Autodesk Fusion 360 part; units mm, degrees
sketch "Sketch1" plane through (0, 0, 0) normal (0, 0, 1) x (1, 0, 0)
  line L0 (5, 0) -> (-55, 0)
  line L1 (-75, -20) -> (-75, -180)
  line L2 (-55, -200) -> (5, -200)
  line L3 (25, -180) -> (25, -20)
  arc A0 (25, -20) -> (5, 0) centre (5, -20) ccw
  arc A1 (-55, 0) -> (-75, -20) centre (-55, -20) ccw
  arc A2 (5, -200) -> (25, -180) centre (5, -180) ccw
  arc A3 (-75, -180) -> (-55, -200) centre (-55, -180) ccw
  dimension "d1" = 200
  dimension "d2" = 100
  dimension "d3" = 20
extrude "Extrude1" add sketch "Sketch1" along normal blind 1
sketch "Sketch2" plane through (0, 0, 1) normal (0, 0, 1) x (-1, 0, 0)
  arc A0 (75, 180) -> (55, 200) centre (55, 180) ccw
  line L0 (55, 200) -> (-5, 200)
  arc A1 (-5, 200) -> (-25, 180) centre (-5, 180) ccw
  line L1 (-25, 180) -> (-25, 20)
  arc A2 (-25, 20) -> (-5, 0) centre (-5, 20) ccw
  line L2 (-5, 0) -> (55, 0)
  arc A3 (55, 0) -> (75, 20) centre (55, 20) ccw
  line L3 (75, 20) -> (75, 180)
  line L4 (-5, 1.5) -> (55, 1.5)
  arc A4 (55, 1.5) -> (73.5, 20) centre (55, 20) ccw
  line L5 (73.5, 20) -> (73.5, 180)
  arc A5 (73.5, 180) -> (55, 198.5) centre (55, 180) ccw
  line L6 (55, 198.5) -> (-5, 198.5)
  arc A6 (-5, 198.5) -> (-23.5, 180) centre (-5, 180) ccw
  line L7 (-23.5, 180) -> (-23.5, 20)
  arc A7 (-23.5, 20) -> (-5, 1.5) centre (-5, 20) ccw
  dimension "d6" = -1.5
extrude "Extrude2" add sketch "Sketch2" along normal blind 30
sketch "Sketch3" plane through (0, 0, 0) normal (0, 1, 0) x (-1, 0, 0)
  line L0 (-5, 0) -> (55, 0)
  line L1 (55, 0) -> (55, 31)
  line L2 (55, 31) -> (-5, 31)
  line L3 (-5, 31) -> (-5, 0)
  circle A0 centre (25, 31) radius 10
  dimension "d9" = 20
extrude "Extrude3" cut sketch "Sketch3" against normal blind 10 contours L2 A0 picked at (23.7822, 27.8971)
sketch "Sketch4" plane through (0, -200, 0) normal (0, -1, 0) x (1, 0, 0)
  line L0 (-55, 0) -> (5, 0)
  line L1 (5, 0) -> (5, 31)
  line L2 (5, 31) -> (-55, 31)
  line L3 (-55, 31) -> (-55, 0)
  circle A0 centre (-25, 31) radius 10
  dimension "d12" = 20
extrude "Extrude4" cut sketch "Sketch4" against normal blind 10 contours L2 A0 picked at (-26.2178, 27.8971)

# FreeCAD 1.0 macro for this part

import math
import FreeCAD as App
import Part
import Sketcher

doc = App.newDocument("Part")
body = doc.addObject("PartDesign::Body", "Body")

# Sketch on XY plane
sketch1 = doc.addObject("Sketcher::SketchObject", "Sketch")
body.addObject(sketch1)
sketch1.AttachmentSupport = (doc.XY_Plane, [""])
sketch1.MapMode = "FlatFace"
sketch1.addGeometry([
    Part.ArcOfCircle(Part.Circle(App.Vector(5, -20, 0), App.Vector(0, 0, 1), 20), math.radians(0), math.radians(90)),  # 0
    Part.LineSegment(App.Vector(5, 0, 0), App.Vector(-55, 0, 0)),  # 1
    Part.ArcOfCircle(Part.Circle(App.Vector(-55, -20, 0), App.Vector(0, 0, 1), 20), math.radians(90), math.radians(180)),  # 2
    Part.LineSegment(App.Vector(-75, -20, 0), App.Vector(-75, -180, 0)),  # 3
    Part.ArcOfCircle(Part.Circle(App.Vector(-55, -180, 0), App.Vector(0, 0, 1), 20), math.radians(180), math.radians(270)),  # 4
    Part.LineSegment(App.Vector(-55, -200, 0), App.Vector(5, -200, 0)),  # 5
    Part.ArcOfCircle(Part.Circle(App.Vector(5, -180, 0), App.Vector(0, 0, 1), 20), math.radians(-90), math.radians(0)),  # 6
    Part.LineSegment(App.Vector(25, -180, 0), App.Vector(25, -20, 0)),  # 7
], False)
sketch1.addConstraint([
    Sketcher.Constraint("Tangent", 0, 2, 1, 1),
    Sketcher.Constraint("Tangent", 1, 2, 2, 1),
    Sketcher.Constraint("Tangent", 2, 2, 3, 1),
    Sketcher.Constraint("Tangent", 3, 2, 4, 1),
    Sketcher.Constraint("Tangent", 4, 2, 5, 1),
    Sketcher.Constraint("Tangent", 5, 2, 6, 1),
    Sketcher.Constraint("Tangent", 6, 2, 7, 1),
    Sketcher.Constraint("Tangent", 7, 2, 0, 1),
    Sketcher.Constraint("Horizontal", 1),
    Sketcher.Constraint("Vertical", 3),
    Sketcher.Constraint("Horizontal", 5),
    Sketcher.Constraint("Vertical", 7),
    Sketcher.Constraint("Equal", 0, 2),
    Sketcher.Constraint("Equal", 2, 4),
    Sketcher.Constraint("Equal", 4, 6),
    Sketcher.Constraint("PointOnObject", 0, 2, -1),
    Sketcher.Constraint("Radius", 0, 20.0),
    Sketcher.Constraint("DistanceY", 4, 2, -1, 1, 200.0),
    Sketcher.Constraint("DistanceX", 3, 2, 6, 2, 100.0),
    Sketcher.Constraint("DistanceX", -1, 1, 0, 3, 5.0),
])
pad1 = doc.addObject("PartDesign::Pad", "Pad")
body.addObject(pad1)
pad1.Profile = sketch1
pad1.Length = 1

# Sketch on XY plane
sketch2 = doc.addObject("Sketcher::SketchObject", "Sketch001")
body.addObject(sketch2)
sketch2.AttachmentSupport = (doc.XY_Plane, [""])
sketch2.MapMode = "FlatFace"
sketch2.AttachmentOffset = App.Placement(App.Vector(0, 0, 1), App.Rotation())
sketch2.addGeometry([
    Part.LineSegment(App.Vector(-75, -20, 0), App.Vector(-75, -180, 0)),  # 0
    Part.ArcOfCircle(Part.Circle(App.Vector(-55, -180, 0), App.Vector(0, 0, 1), 20), math.radians(180), math.radians(270)),  # 1
    Part.LineSegment(App.Vector(-55, -200, 0), App.Vector(5, -200, 0)),  # 2
    Part.ArcOfCircle(Part.Circle(App.Vector(5, -180, 0), App.Vector(0, 0, 1), 20), math.radians(-90), math.radians(0)),  # 3
    Part.LineSegment(App.Vector(25, -180, 0), App.Vector(25, -20, 0)),  # 4
    Part.ArcOfCircle(Part.Circle(App.Vector(5, -20, 0), App.Vector(0, 0, 1), 20), math.radians(0), math.radians(90)),  # 5
    Part.LineSegment(App.Vector(5, 0, 0), App.Vector(-55, 0, 0)),  # 6
    Part.ArcOfCircle(Part.Circle(App.Vector(-55, -20, 0), App.Vector(0, 0, 1), 20), math.radians(90), math.radians(180)),  # 7
    Part.LineSegment(App.Vector(-55, -1.5, 0), App.Vector(5, -1.5, 0)),  # 8
    Part.ArcOfCircle(Part.Circle(App.Vector(5, -20, 0), App.Vector(0, 0, 1), 18.5), math.radians(0), math.radians(90)),  # 9
    Part.LineSegment(App.Vector(23.5, -20, 0), App.Vector(23.5, -180, 0)),  # 10
    Part.ArcOfCircle(Part.Circle(App.Vector(5, -180, 0), App.Vector(0, 0, 1), 18.5), math.radians(-90), math.radians(0)),  # 11
    Part.LineSegment(App.Vector(5, -198.5, 0), App.Vector(-55, -198.5, 0)),  # 12
    Part.ArcOfCircle(Part.Circle(App.Vector(-55, -180, 0), App.Vector(0, 0, 1), 18.5), math.radians(180), math.radians(270)),  # 13
    Part.LineSegment(App.Vector(-73.5, -180, 0), App.Vector(-73.5, -20, 0)),  # 14
    Part.ArcOfCircle(Part.Circle(App.Vector(-55, -20, 0), App.Vector(0, 0, 1), 18.5), math.radians(90), math.radians(180)),  # 15
], False)
sketch2.addConstraint([
    Sketcher.Constraint("Tangent", 0, 2, 1, 1),
    Sketcher.Constraint("Tangent", 1, 2, 2, 1),
    Sketcher.Constraint("Tangent", 2, 2, 3, 1),
    Sketcher.Constraint("Tangent", 3, 2, 4, 1),
    Sketcher.Constraint("Tangent", 4, 2, 5, 1),
    Sketcher.Constraint("Tangent", 5, 2, 6, 1),
    Sketcher.Constraint("Tangent", 6, 2, 7, 1),
    Sketcher.Constraint("Tangent", 7, 2, 0, 1),
    Sketcher.Constraint("Tangent", 8, 2, 9, 2),
    Sketcher.Constraint("Tangent", 9, 1, 10, 1),
    Sketcher.Constraint("Tangent", 10, 2, 11, 2),
    Sketcher.Constraint("Tangent", 11, 1, 12, 1),
    Sketcher.Constraint("Tangent", 12, 2, 13, 2),
    Sketcher.Constraint("Tangent", 13, 1, 14, 1),
    Sketcher.Constraint("Tangent", 14, 2, 15, 2),
    Sketcher.Constraint("Tangent", 15, 1, 8, 1),
    Sketcher.Constraint("Vertical", 0),
    Sketcher.Constraint("Horizontal", 2),
    Sketcher.Constraint("Vertical", 4),
    Sketcher.Constraint("Horizontal", 6),
    Sketcher.Constraint("Horizontal", 8),
    Sketcher.Constraint("Vertical", 10),
    Sketcher.Constraint("Horizontal", 12),
    Sketcher.Constraint("Vertical", 14),
    Sketcher.Constraint("Coincident", 9, 3, 5, 3),
    Sketcher.Constraint("Coincident", 11, 3, 3, 3),
    Sketcher.Constraint("Coincident", 13, 3, 1, 3),
    Sketcher.Constraint("Equal", 1, 3),
    Sketcher.Constraint("Equal", 3, 5),
    Sketcher.Constraint("Equal", 5, 7),
    Sketcher.Constraint("Equal", 13, 15),
    Sketcher.Constraint("PointOnObject", 5, 2, -1),
    Sketcher.Constraint("Radius", 1, 20.0),
    Sketcher.Constraint("DistanceY", 8, 2, -1, 1, 1.5),
    Sketcher.Constraint("DistanceX", 2, 1, 2, 2, 60.0),
    Sketcher.Constraint("DistanceY", 0, 2, 0, 1, 160.0),
    Sketcher.Constraint("DistanceX", 1, 3, -1, 1, 55.0),
])
pad2 = doc.addObject("PartDesign::Pad", "Pad001")
body.addObject(pad2)
pad2.Profile = sketch2
pad2.Length = 30

# Sketch on XZ plane
sketch3 = doc.addObject("Sketcher::SketchObject", "Sketch002")
body.addObject(sketch3)
sketch3.AttachmentSupport = (doc.XZ_Plane, [""])
sketch3.MapMode = "FlatFace"
sketch3.addGeometry([
    Part.LineSegment(App.Vector(-35, 31, 0), App.Vector(-15, 31, 0)),
    Part.ArcOfCircle(Part.Circle(App.Vector(-25, 31, 0), App.Vector(0, 0, 1), 10), math.radians(180), math.radians(360)),
], False)
sketch3.addConstraint([
    Sketcher.Constraint("Coincident", 0, 1, 1, 1),
    Sketcher.Constraint("Coincident", 1, 2, 0, 2),
    Sketcher.Constraint("Horizontal", 0),
    Sketcher.Constraint("Horizontal", 1, 3, 0, 1),
    Sketcher.Constraint("Radius", 1, 10.0),
    Sketcher.Constraint("DistanceX", 1, 3, -1, 1, 25.0),
    Sketcher.Constraint("DistanceY", -1, 1, 1, 3, 31.0),
])
pocket1 = doc.addObject("PartDesign::Pocket", "Pocket")
body.addObject(pocket1)
pocket1.Profile = sketch3
pocket1.Length = 10
pocket1.Reversed = True

# Sketch on XZ plane
sketch4 = doc.addObject("Sketcher::SketchObject", "Sketch003")
body.addObject(sketch4)
sketch4.AttachmentSupport = (doc.XZ_Plane, [""])
sketch4.MapMode = "FlatFace"
sketch4.AttachmentOffset = App.Placement(App.Vector(0, 0, 200), App.Rotation())
sketch4.addGeometry([
    Part.LineSegment(App.Vector(-15, 31, 0), App.Vector(-35, 31, 0)),
    Part.ArcOfCircle(Part.Circle(App.Vector(-25, 31, 0), App.Vector(0, 0, 1), 10), math.radians(180), math.radians(360)),
], False)
sketch4.addConstraint([
    Sketcher.Constraint("Coincident", 0, 1, 1, 2),
    Sketcher.Constraint("Coincident", 1, 1, 0, 2),
    Sketcher.Constraint("Horizontal", 0),
    Sketcher.Constraint("Horizontal", 1, 3, 0, 1),
    Sketcher.Constraint("Radius", 1, 10.0),
    Sketcher.Constraint("DistanceX", 1, 3, -1, 1, 25.0),
    Sketcher.Constraint("DistanceY", -1, 1, 1, 3, 31.0),
])
pocket2 = doc.addObject("PartDesign::Pocket", "Pocket001")
body.addObject(pocket2)
pocket2.Profile = sketch4
pocket2.Length = 10

doc.recompute()
